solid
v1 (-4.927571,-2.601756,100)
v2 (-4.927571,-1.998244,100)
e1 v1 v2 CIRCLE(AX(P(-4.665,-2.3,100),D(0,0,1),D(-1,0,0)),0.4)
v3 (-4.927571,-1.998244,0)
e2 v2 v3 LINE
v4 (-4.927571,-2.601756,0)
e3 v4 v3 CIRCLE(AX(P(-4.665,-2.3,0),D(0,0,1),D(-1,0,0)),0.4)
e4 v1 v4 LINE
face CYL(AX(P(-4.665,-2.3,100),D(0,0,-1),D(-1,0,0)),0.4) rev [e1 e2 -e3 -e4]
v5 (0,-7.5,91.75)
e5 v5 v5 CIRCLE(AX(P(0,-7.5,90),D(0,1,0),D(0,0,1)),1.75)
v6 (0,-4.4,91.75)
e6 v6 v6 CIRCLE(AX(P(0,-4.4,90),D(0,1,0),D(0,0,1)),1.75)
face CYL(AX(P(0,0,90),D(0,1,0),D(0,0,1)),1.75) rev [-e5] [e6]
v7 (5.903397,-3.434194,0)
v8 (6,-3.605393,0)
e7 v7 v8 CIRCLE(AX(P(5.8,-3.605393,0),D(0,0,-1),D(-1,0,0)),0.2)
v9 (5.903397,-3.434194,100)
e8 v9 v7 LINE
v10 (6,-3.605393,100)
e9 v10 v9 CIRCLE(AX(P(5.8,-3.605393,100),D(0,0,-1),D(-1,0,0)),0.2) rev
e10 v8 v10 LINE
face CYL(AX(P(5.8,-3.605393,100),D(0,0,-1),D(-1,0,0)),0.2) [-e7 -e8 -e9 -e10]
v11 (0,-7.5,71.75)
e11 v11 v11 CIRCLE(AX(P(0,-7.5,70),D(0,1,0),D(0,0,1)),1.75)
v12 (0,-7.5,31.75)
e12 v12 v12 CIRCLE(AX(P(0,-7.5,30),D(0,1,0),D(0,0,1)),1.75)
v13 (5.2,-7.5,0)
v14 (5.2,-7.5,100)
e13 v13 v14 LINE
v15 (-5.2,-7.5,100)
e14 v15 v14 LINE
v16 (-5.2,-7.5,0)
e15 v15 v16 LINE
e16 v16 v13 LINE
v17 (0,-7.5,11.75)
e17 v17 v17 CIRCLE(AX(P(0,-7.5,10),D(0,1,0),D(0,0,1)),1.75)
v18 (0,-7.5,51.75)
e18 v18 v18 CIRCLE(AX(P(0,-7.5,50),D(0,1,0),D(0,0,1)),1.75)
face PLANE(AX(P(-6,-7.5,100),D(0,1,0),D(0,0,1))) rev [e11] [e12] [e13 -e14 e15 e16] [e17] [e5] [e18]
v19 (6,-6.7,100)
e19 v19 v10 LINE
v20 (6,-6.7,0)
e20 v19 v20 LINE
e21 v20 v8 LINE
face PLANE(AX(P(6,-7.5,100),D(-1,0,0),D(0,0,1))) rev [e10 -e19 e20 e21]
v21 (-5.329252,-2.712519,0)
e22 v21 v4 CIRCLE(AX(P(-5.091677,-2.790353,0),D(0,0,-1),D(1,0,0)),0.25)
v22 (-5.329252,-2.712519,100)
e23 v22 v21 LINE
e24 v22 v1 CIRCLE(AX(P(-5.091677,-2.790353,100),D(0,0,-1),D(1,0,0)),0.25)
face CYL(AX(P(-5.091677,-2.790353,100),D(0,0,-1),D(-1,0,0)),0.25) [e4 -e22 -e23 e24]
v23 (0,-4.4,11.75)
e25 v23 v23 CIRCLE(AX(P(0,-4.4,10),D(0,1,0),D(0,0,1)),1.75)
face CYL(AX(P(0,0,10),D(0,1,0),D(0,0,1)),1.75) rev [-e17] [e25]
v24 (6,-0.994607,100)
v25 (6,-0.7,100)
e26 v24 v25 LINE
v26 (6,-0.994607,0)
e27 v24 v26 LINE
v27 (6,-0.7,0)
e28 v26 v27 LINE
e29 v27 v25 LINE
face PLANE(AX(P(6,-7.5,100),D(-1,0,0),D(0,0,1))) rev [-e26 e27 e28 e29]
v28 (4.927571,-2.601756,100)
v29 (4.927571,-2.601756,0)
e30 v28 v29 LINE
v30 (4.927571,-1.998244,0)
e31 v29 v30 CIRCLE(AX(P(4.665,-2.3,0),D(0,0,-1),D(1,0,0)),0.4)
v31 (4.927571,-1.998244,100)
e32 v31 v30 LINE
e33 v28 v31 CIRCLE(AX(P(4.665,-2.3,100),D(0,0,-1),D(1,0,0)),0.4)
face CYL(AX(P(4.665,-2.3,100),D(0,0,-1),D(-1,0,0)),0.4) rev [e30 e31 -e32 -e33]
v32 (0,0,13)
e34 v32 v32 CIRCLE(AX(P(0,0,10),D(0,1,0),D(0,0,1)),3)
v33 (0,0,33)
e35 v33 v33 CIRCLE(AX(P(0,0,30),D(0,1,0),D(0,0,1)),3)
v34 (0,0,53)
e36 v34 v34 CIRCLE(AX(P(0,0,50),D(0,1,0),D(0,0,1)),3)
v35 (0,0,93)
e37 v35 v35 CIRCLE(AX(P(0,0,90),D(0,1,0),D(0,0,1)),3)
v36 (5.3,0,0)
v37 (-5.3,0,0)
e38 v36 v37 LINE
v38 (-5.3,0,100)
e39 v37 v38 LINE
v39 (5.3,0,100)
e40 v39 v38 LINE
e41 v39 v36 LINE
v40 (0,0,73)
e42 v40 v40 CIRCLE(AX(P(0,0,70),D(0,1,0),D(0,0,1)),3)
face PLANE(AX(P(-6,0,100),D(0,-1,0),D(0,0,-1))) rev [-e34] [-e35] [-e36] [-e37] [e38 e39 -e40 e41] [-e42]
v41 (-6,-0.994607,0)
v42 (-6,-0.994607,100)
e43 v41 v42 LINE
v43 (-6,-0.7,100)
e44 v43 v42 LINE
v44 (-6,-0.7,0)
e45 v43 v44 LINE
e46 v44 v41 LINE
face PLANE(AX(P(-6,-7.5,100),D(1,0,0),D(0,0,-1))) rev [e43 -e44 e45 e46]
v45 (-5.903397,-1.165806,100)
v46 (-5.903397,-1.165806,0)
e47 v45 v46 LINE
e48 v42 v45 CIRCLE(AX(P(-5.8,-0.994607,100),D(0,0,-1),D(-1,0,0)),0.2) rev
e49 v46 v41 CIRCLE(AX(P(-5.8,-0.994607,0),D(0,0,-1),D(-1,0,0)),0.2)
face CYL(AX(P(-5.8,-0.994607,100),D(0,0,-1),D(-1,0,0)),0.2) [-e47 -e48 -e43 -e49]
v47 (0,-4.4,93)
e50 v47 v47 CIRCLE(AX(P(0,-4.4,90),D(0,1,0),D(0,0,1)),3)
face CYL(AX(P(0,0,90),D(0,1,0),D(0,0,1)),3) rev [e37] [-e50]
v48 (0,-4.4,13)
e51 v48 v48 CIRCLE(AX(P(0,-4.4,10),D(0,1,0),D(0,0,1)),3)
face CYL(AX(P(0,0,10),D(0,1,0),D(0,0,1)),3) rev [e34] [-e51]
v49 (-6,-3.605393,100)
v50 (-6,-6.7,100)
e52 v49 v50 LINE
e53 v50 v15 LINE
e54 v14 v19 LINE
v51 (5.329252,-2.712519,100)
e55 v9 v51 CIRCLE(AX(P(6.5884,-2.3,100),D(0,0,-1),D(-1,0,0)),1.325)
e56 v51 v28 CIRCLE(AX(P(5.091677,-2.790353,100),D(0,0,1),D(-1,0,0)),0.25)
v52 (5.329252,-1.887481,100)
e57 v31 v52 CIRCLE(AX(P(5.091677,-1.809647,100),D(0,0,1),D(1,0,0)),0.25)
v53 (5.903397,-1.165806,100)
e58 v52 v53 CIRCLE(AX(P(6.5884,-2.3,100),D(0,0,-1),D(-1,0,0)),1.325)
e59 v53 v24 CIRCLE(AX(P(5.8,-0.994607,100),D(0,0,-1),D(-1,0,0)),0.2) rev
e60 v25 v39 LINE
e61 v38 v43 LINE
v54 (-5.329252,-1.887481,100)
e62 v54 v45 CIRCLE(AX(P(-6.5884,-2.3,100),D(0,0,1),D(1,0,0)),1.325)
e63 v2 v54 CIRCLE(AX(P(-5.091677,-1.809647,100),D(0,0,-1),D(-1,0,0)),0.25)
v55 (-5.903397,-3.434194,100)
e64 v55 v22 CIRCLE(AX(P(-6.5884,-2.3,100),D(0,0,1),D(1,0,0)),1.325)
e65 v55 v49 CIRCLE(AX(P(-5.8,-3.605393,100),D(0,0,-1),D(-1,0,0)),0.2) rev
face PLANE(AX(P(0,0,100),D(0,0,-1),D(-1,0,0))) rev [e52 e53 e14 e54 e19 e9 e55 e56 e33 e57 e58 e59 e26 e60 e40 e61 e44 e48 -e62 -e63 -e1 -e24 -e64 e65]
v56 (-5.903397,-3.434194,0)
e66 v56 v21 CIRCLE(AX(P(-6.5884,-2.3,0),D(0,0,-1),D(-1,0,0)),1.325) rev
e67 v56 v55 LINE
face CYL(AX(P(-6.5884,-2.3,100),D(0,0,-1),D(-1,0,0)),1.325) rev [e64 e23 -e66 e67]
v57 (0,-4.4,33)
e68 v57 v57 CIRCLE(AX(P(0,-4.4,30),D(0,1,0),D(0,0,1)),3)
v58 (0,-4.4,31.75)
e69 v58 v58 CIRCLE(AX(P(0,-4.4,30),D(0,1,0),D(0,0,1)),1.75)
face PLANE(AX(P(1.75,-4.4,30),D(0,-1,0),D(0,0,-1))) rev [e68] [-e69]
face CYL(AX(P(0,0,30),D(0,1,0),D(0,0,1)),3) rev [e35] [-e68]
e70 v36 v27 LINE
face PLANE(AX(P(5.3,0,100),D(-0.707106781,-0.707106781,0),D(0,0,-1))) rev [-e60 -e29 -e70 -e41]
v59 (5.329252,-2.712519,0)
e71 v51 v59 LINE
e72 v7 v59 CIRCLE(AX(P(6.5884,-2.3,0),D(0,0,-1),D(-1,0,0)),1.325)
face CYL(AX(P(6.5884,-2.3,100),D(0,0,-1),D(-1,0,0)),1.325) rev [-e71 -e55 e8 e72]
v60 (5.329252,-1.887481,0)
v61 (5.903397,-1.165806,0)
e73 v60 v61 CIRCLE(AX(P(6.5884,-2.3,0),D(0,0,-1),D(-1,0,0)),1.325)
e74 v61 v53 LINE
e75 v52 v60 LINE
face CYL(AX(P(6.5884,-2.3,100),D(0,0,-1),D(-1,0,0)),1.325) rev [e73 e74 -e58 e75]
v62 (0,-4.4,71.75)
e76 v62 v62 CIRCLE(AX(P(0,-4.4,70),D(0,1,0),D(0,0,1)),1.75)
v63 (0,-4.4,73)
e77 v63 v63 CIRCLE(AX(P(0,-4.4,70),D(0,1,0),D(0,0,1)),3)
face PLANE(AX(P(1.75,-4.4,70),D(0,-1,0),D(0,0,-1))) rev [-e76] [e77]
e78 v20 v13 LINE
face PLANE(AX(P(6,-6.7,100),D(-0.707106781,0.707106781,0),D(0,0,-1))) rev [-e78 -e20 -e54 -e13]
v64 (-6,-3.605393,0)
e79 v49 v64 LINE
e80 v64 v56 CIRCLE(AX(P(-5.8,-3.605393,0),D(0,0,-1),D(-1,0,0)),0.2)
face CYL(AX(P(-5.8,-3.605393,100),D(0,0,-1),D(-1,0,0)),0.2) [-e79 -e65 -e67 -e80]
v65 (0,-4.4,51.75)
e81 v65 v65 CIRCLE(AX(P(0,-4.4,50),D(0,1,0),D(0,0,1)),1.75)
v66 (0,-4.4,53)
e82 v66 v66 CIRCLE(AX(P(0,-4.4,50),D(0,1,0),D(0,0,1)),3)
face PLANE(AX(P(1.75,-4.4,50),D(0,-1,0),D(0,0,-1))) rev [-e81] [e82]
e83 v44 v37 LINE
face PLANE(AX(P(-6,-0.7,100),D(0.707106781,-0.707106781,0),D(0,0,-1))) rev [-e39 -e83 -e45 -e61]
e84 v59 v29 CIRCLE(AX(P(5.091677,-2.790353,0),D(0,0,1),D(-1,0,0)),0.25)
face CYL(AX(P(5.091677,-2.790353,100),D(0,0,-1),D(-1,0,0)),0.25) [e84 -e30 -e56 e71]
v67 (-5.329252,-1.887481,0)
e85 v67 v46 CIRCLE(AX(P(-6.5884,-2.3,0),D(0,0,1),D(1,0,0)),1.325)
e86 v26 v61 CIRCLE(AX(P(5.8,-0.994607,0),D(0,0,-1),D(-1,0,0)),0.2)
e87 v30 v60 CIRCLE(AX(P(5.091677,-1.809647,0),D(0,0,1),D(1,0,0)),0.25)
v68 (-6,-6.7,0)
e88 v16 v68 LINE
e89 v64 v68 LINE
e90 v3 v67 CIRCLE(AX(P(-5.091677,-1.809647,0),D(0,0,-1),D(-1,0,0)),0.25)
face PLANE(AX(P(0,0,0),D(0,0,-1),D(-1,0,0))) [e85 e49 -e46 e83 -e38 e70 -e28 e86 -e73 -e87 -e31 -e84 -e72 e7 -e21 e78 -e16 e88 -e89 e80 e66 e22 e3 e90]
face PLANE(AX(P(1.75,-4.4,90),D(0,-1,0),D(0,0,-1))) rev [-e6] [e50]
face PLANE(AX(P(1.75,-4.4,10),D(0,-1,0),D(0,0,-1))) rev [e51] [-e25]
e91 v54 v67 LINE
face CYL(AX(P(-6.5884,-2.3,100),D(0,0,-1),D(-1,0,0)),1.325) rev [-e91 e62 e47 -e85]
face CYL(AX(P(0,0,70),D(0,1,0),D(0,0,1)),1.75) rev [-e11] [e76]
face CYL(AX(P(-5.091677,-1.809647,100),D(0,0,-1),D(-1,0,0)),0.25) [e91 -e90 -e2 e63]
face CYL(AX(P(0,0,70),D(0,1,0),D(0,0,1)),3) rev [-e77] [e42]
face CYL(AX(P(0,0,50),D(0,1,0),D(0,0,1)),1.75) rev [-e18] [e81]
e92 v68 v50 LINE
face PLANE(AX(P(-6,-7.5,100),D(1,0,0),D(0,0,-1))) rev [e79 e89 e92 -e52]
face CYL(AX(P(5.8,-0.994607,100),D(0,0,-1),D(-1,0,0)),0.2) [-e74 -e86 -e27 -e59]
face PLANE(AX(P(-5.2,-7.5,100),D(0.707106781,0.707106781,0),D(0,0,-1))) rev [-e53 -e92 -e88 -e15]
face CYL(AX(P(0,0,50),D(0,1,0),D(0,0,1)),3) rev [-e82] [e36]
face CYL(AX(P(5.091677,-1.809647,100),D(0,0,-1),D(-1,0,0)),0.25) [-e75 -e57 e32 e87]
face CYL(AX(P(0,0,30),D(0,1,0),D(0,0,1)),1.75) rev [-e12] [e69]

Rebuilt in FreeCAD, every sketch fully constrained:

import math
import FreeCAD as App
import Part
import Sketcher
from FreeCAD import Vector
Q = App.Units.Quantity


def edges_at(feature, points):
    """Names of the edges that pass closest to the given points."""
    edges = feature.Shape.Edges
    near = lambda p: min(range(len(edges)), key=lambda i: edges[i].distToShape(Part.Vertex(*p))[0])
    return sorted({f"Edge{near(p) + 1}" for p in points})


def add_polygon(sketch, points):
    """Adds a closed chain of lines whose ends are joined by coincident constraints."""
    first, n = sketch.GeometryCount, len(points)
    for a, b in zip(points, points[1:] + points[:1]):
        sketch.addGeometry(Part.LineSegment(App.Vector(*a, 0), App.Vector(*b, 0)), False)
    for i in range(n):
        sketch.addConstraint(Sketcher.Constraint("Coincident", first + i, 2, first + (i + 1) % n, 1))

doc = App.newDocument("Part")
body = doc.addObject("PartDesign::Body", "Body")

# Sketch on XY plane
sketch1 = body.newObject("Sketcher::SketchObject", "Sketch")
sketch1.AttachmentSupport = (doc.getObject("XY_Plane"), [""])
sketch1.MapMode = "FlatFace"
add_polygon(sketch1, [(-6, 0), (-6, -8), (6, -8), (6, 0)])  # lines 0-3
sketch1.addConstraint(Sketcher.Constraint("Vertical", 0))
sketch1.addConstraint(Sketcher.Constraint("Horizontal", 1))
sketch1.addConstraint(Sketcher.Constraint("Vertical", 2))
sketch1.addConstraint(Sketcher.Constraint("Horizontal", 3))
sketch1.addConstraint(Sketcher.Constraint("Symmetric", 2, 2, 3, 2, -1, 1))
sketch1.addConstraint(Sketcher.Constraint("DistanceX", 1, 1, 1, 2, Q("12 mm")))
sketch1.addConstraint(Sketcher.Constraint("DistanceY", 0, 2, 0, 1, Q("7.5 mm")))
pad1 = body.newObject("PartDesign::Pad", "Pad")
pad1.Profile = sketch1
pad1.Length = 100

# Sketch on XY plane
sketch2 = body.newObject("Sketcher::SketchObject", "Sketch001")
sketch2.AttachmentSupport = (doc.getObject("XY_Plane"), [""])
sketch2.MapMode = "FlatFace"
sketch2.addGeometry(Part.ArcOfCircle(Part.Circle(Vector(-6.59, -2.3, 0), Vector(0, 0, 1), 1.32), math.radians(18), math.radians(342)), False)
sketch2.addGeometry(Part.ArcOfCircle(Part.Circle(Vector(-5.09, -2.79, 0), Vector(0, 0, 1), 0.25), math.radians(49), math.radians(162)), False)
sketch2.addGeometry(Part.ArcOfCircle(Part.Circle(Vector(-4.67, -2.3, 0), Vector(0, 0, 1), 0.4), math.radians(-131), math.radians(131)), False)
sketch2.addGeometry(Part.ArcOfCircle(Part.Circle(Vector(-5.09, -1.81, 0), Vector(0, 0, 1), 0.25), math.radians(-162), math.radians(-49)), False)
sketch2.addConstraint(Sketcher.Constraint("Tangent", 0, 2, 1, 2))
sketch2.addConstraint(Sketcher.Constraint("Tangent", 1, 1, 2, 1))
sketch2.addConstraint(Sketcher.Constraint("Tangent", 2, 2, 3, 2))
sketch2.addConstraint(Sketcher.Constraint("Tangent", 3, 1, 0, 1))
sketch2.addConstraint(Sketcher.Constraint("Equal", 1, 3))
sketch2.addConstraint(Sketcher.Constraint("Horizontal", 0, 3, 2, 3))
sketch2.addConstraint(Sketcher.Constraint("Radius", 2, Q("0.4 mm")))
sketch2.addConstraint(Sketcher.Constraint("Radius", 1, Q("0.25 mm")))
sketch2.addConstraint(Sketcher.Constraint("Radius", 0, Q("1.325 mm")))
sketch2.addConstraint(Sketcher.Constraint("DistanceY", 0, 3, -1, 1, Q("2.3 mm")))
sketch2.addConstraint(Sketcher.Constraint("DistanceX", 2, 3, -1, 1, Q("4.665 mm")))
sketch2.addConstraint(Sketcher.Constraint("DistanceX", 0, 3, -1, 1, Q("6.5884 mm")))
pocket1 = body.newObject("PartDesign::Pocket", "Pocket")
pocket1.Profile = sketch2
pocket1.Type = "ThroughAll"
pocket1.Reversed = True
doc.recompute()

mirrored = body.newObject("PartDesign::Mirrored", "Mirrored")
mirrored.Originals = [pocket1]
mirrored.MirrorPlane = (doc.getObject("YZ_Plane"), [""])
body.Tip = mirrored
doc.recompute()

fillet = body.newObject("PartDesign::Fillet", "Fillet")
fillet.Base = (mirrored, edges_at(mirrored, [
    (-6, -3.487, 50),
    (-6, -1.113, 50),
    (6, -1.113, 50),
    (6, -3.487, 50),
]))
fillet.Radius = 0.2
doc.recompute()

chamfer = body.newObject("PartDesign::Chamfer", "Chamfer")
chamfer.Base = (fillet, edges_at(fillet, [(-6, 0, 50), (6, 0, 50)]))
chamfer.Size = 0.7
doc.recompute()

chamfer2 = body.newObject("PartDesign::Chamfer", "Chamfer001")
chamfer2.Base = (chamfer, edges_at(chamfer, [(6, -7.5, 50), (-6, -7.5, 50)]))
chamfer2.Size = 0.8

# Sketch on XZ plane
sketch3 = body.newObject("Sketcher::SketchObject", "Sketch002")
sketch3.AttachmentSupport = (doc.getObject("XZ_Plane"), [""])
sketch3.MapMode = "FlatFace"
sketch3.addGeometry(Part.Circle(Vector(0, 10, 0), Vector(0, 0, 1), 1.8), False)
sketch3.addConstraint(Sketcher.Constraint("PointOnObject", 0, 3, -2))
sketch3.addConstraint(Sketcher.Constraint("Diameter", 0, Q("3.5 mm")))
sketch3.addConstraint(Sketcher.Constraint("DistanceY", -1, 1, 0, 3, Q("10 mm")))
doc.recompute()
hole = body.newObject("PartDesign::Hole", "Hole")
hole.Profile = sketch3
hole.ThreadType = "None"
hole.Diameter = 3.5
hole.DepthType = "ThroughAll"
hole.HoleCutType = "Counterbore"
hole.HoleCutDiameter = 6
hole.HoleCutDepth = 4.4
hole.Reversed = True
doc.recompute()

linearpattern = body.newObject("PartDesign::LinearPattern", "LinearPattern")
linearpattern.Originals = [hole]
linearpattern.Direction = (doc.getObject("Z_Axis"), [""])
linearpattern.Mode = "offset"
linearpattern.Offset = 20
linearpattern.Occurrences = 5
body.Tip = linearpattern

doc.recompute()
